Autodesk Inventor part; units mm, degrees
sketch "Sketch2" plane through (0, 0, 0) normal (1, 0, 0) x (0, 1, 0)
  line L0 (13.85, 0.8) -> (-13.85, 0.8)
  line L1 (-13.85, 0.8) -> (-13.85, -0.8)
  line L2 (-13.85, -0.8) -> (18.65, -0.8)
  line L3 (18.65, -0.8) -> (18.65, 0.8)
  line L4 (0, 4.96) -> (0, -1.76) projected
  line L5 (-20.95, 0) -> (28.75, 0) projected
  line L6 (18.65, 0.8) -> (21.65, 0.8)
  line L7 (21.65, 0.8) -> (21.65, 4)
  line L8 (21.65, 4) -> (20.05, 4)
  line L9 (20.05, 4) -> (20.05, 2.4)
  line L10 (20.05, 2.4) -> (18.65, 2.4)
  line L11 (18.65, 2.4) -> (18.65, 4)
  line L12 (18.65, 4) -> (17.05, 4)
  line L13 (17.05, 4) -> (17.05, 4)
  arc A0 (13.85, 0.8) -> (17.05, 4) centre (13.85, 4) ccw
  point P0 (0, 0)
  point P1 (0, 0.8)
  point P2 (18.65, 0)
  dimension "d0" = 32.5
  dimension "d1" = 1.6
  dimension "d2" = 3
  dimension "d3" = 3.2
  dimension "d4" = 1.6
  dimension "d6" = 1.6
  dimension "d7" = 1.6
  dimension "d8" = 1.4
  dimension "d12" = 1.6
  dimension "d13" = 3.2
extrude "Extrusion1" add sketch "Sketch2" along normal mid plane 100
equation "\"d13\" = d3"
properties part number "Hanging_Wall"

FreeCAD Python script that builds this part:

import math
import FreeCAD as App
import Part
import Sketcher
Q = App.Units.Quantity

doc = App.newDocument("Part")
body = doc.addObject("PartDesign::Body", "Body")

sketch1 = body.newObject("Sketcher::SketchObject", "Sketch")
sketch1.AttachmentSupport = (doc.getObject("YZ_Plane"), [""])
sketch1.MapMode = "FlatFace"
sketch1.addGeometry([
    Part.ArcOfCircle(Part.Circle(App.Vector(13.8, 4, 0), App.Vector(0, 0, 1), 3.2), math.radians(-90), math.radians(0)),
    Part.LineSegment(App.Vector(13.8, 0.8, 0), App.Vector(-13.8, 0.8, 0)),
    Part.LineSegment(App.Vector(-13.8, 0.8, 0), App.Vector(-13.8, -0.8, 0)),
    Part.LineSegment(App.Vector(-13.8, -0.8, 0), App.Vector(18.6, -0.8, 0)),
    Part.LineSegment(App.Vector(18.6, -0.8, 0), App.Vector(18.6, 0.8, 0)),
    Part.LineSegment(App.Vector(18.6, 0.8, 0), App.Vector(21.6, 0.8, 0)),
    Part.LineSegment(App.Vector(21.6, 0.8, 0), App.Vector(21.6, 4, 0)),
    Part.LineSegment(App.Vector(21.6, 4, 0), App.Vector(20.1, 4, 0)),
    Part.LineSegment(App.Vector(20.1, 4, 0), App.Vector(20.1, 2.4, 0)),
    Part.LineSegment(App.Vector(20.1, 2.4, 0), App.Vector(18.6, 2.4, 0)),
    Part.LineSegment(App.Vector(18.6, 2.4, 0), App.Vector(18.6, 4, 0)),
    Part.LineSegment(App.Vector(18.6, 4, 0), App.Vector(17.1, 4, 0)),
], False)
sketch1.addConstraint([
    Sketcher.Constraint("Tangent", 0, 1, 1, 1),
    Sketcher.Constraint("Coincident", 1, 2, 2, 1),
    Sketcher.Constraint("Coincident", 2, 2, 3, 1),
    Sketcher.Constraint("Coincident", 3, 2, 4, 1),
    Sketcher.Constraint("Coincident", 4, 2, 5, 1),
    Sketcher.Constraint("Coincident", 5, 2, 6, 1),
    Sketcher.Constraint("Coincident", 6, 2, 7, 1),
    Sketcher.Constraint("Coincident", 7, 2, 8, 1),
    Sketcher.Constraint("Coincident", 8, 2, 9, 1),
    Sketcher.Constraint("Coincident", 9, 2, 10, 1),
    Sketcher.Constraint("Coincident", 10, 2, 11, 1),
    Sketcher.Constraint("Coincident", 11, 2, 0, 2),
    Sketcher.Constraint("Horizontal", 1),
    Sketcher.Constraint("Vertical", 2),
    Sketcher.Constraint("Horizontal", 3),
    Sketcher.Constraint("Vertical", 4),
    Sketcher.Constraint("Horizontal", 5),
    Sketcher.Constraint("Vertical", 6),
    Sketcher.Constraint("Horizontal", 7),
    Sketcher.Constraint("Vertical", 8),
    Sketcher.Constraint("Horizontal", 9),
    Sketcher.Constraint("Vertical", 10),
    Sketcher.Constraint("Horizontal", 11),
    Sketcher.Constraint("Symmetric", 0, 1, 2, 2, -1, 1),
    Sketcher.Constraint("Horizontal", 1, 2, 4, 2),
    Sketcher.Constraint("Horizontal", 0, 3, 6, 2),
    Sketcher.Constraint("Horizontal", 7, 2, 10, 2),
    Sketcher.Constraint("Vertical", 4, 2, 9, 2),
    Sketcher.Constraint("Equal", 7, 11),
    Sketcher.Constraint("Equal", 11, 2),
    Sketcher.Constraint("Equal", 4, 8),
    Sketcher.Constraint("Radius", 0, Q("3.2 mm")),
    Sketcher.Constraint("DistanceX", 5, 1, 5, 2, Q("3 mm")),
    Sketcher.Constraint("DistanceX", 3, 1, 3, 2, Q("32.5 mm")),
    Sketcher.Constraint("DistanceX", 7, 2, 7, 1, Q("1.6 mm")),
])
pad1 = body.newObject("PartDesign::Pad", "Pad")
pad1.Profile = sketch1
pad1.Length = 100
pad1.Midplane = True

doc.recompute()
